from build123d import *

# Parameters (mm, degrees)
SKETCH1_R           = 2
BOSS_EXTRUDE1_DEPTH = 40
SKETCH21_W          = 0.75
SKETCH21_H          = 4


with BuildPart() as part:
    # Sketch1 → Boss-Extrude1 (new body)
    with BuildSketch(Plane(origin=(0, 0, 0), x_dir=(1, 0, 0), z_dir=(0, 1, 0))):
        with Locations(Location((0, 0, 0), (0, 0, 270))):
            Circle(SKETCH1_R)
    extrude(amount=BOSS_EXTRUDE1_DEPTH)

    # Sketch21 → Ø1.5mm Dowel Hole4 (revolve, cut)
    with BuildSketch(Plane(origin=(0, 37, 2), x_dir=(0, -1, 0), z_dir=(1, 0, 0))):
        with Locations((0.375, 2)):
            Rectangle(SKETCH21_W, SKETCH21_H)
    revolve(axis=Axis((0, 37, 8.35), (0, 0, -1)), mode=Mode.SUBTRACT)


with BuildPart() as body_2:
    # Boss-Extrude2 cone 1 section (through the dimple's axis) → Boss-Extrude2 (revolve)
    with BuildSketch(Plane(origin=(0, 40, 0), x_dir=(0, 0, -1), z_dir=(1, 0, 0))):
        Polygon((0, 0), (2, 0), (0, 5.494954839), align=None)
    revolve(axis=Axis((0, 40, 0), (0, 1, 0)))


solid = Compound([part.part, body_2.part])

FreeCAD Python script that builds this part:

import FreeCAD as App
import Part
import Sketcher
Q = App.Units.Quantity


def add_polygon(sketch, points):
    """Adds a closed chain of lines whose ends are joined by coincident constraints."""
    first, n = sketch.GeometryCount, len(points)
    for a, b in zip(points, points[1:] + points[:1]):
        sketch.addGeometry(Part.LineSegment(App.Vector(*a, 0), App.Vector(*b, 0)), False)
    for i in range(n):
        sketch.addConstraint(Sketcher.Constraint("Coincident", first + i, 2, first + (i + 1) % n, 1))

doc = App.newDocument("Part")
body = doc.addObject("PartDesign::Body", "Body")

# Sketch on XZ plane
sketch1 = body.newObject("Sketcher::SketchObject", "Sketch")
sketch1.AttachmentSupport = (doc.getObject("XZ_Plane"), [""])
sketch1.MapMode = "FlatFace"
sketch1.addGeometry(Part.Circle(App.Vector(0, 0, 0), App.Vector(0, 0, 1), 2), False)
sketch1.addConstraint([
    Sketcher.Constraint("Coincident", 0, 3, -1, 1),
    Sketcher.Constraint("Diameter", 0, 4.0),
])
pad1 = body.newObject("PartDesign::Pad", "Pad")
pad1.Profile = sketch1
pad1.Length = 40
pad1.Reversed = True

# Sketch on YZ plane
sketch2 = body.newObject("Sketcher::SketchObject", "Sketch001")
sketch2.AttachmentSupport = (doc.getObject("YZ_Plane"), [""])
sketch2.MapMode = "FlatFace"
add_polygon(sketch2, [(37, -2), (37, 2), (36.2, 2), (36.2, -2)])  # lines 0-3
sketch2.addGeometry(Part.LineSegment(App.Vector(37, 2, 0), App.Vector(37, -2, 0)), True)  # axis
sketch2.addConstraint([
    Sketcher.Constraint("Vertical", 0),
    Sketcher.Constraint("Horizontal", 1),
    Sketcher.Constraint("Vertical", 2),
    Sketcher.Constraint("Horizontal", 3),
    Sketcher.Constraint("Vertical", 4),
    Sketcher.Constraint("Coincident", 4, 1, 0, 2),
    Sketcher.Constraint("Horizontal", 2, 2, 4, 2),
    Sketcher.Constraint("DistanceY", 0, 1, 0, 2, 4.0),
    Sketcher.Constraint("DistanceX", -1, 1, 0, 2, 37.0),
    Sketcher.Constraint("DistanceY", -1, 1, 0, 2, 2.0),
    Sketcher.Constraint("DistanceX", 1, 2, 1, 1, 0.75),
])
groove = body.newObject("PartDesign::Groove", "Groove")
groove.Profile = sketch2
groove.ReferenceAxis = (sketch2, ["Axis0"])
groove.Angle = 360
body2 = doc.addObject("PartDesign::Body", "Body001")

# Sketch on YZ plane
sketch3 = body2.newObject("Sketcher::SketchObject", "Sketch002")
sketch3.AttachmentSupport = (doc.getObject("YZ_Plane001"), [""])
sketch3.MapMode = "FlatFace"
add_polygon(sketch3, [(40, 0), (40, -2), (45.5, 0)])  # lines 0-2
sketch3.addConstraint([
    Sketcher.Constraint("Vertical", 0),
    Sketcher.Constraint("Horizontal", 2),
    Sketcher.Constraint("PointOnObject", 1, 2, -1),
    Sketcher.Constraint("DistanceY", 0, 2, 0, 1, 2.0),
    Sketcher.Constraint("Angle", 1, Q("20 deg")),
    Sketcher.Constraint("DistanceX", -1, 1, 0, 2, 40.0),
])
revolution = body2.newObject("PartDesign::Revolution", "Revolution")
revolution.Profile = sketch3
revolution.ReferenceAxis = (sketch3, ["H_Axis"])
revolution.Angle = 360

doc.recompute()
